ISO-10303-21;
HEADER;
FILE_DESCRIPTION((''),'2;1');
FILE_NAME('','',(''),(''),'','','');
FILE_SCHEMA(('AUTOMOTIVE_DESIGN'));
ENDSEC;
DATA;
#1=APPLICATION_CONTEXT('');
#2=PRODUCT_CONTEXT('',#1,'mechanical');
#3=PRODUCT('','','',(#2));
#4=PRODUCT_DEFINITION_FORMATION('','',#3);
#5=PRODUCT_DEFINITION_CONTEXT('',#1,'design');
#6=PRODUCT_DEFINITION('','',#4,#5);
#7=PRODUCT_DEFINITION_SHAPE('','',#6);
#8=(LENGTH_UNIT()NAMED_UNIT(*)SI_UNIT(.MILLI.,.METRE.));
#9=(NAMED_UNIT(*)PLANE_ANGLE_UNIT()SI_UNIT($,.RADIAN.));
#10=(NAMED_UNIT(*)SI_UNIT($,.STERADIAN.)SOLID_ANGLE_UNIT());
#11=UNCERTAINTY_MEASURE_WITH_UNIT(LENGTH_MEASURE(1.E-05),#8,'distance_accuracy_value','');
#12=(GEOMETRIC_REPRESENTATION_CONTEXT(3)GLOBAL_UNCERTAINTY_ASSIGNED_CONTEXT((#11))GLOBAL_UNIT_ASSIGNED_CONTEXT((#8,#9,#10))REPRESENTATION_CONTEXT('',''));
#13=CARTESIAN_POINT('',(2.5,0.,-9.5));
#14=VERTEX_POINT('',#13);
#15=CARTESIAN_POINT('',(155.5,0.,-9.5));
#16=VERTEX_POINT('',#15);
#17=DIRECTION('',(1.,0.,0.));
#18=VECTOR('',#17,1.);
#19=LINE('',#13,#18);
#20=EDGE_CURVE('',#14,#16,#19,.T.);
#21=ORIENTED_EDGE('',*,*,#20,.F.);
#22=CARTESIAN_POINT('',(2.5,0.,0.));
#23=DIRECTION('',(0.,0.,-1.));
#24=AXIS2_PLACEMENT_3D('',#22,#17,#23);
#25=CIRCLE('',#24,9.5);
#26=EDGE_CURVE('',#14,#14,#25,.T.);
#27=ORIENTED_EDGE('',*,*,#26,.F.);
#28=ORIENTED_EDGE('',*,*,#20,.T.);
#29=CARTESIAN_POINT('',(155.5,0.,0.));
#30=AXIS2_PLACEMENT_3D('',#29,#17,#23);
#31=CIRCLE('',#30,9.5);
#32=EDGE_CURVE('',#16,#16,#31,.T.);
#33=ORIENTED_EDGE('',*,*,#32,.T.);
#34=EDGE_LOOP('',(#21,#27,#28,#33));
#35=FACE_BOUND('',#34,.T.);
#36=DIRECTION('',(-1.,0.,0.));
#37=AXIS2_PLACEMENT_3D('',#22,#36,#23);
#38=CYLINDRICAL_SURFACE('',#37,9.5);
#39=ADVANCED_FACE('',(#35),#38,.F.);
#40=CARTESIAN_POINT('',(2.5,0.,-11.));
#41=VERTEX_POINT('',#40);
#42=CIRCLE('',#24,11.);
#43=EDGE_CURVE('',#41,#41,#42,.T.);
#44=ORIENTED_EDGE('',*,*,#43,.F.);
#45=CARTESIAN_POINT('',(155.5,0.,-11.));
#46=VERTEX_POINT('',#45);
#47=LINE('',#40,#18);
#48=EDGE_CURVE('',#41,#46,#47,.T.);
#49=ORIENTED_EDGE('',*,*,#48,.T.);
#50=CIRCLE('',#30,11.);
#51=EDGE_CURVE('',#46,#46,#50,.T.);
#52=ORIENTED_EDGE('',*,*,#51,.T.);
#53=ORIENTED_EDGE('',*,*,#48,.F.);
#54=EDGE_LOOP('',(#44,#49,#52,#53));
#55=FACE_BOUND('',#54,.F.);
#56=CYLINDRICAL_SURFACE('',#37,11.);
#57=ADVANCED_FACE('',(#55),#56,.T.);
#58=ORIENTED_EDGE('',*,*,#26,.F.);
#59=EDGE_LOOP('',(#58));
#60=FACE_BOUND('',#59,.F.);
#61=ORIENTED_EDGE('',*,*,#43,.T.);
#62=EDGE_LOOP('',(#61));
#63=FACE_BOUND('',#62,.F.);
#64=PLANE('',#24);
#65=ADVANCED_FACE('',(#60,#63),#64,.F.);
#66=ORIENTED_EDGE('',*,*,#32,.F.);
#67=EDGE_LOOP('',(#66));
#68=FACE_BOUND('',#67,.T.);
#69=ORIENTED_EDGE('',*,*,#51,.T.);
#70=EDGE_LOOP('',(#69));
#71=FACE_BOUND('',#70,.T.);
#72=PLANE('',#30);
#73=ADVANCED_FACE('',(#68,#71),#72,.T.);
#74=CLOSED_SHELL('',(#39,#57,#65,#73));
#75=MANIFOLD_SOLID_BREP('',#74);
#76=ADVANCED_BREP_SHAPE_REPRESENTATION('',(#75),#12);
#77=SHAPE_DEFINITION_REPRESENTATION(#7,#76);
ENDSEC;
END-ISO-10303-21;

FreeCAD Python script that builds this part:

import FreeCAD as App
import Part
import Sketcher

V = App.Vector
Q = App.Units.Quantity

doc = App.newDocument("Part")
body = doc.addObject("PartDesign::Body", "Body")

# Sketch on XY plane
sketch1 = body.newObject("Sketcher::SketchObject", "Sketch")
sketch1.AttachmentSupport = (doc.getObject("XY_Plane"), [""])
sketch1.MapMode = "FlatFace"
sketch1.AttachmentOffset = App.Placement(V(0, 0, 2.5), App.Rotation())
sketch1.addGeometry(Part.Circle(V(0, 0, 0), V(0, 0, 1), 10), False)
sketch1.addConstraint([
    Sketcher.Constraint("Coincident", 0, 3, -1, 1),
    Sketcher.Constraint("Diameter", 0, Q("19 mm")),
])
pad1 = body.newObject("PartDesign::Pad", "Pad")
pad1.Profile = sketch1
pad1.Length = 153
body2 = doc.addObject("PartDesign::Body", "Body001")

# Sketch on XY plane
sketch2 = body2.newObject("Sketcher::SketchObject", "Sketch001")
sketch2.AttachmentSupport = (doc.getObject("XY_Plane001"), [""])
sketch2.MapMode = "FlatFace"
sketch2.AttachmentOffset = App.Placement(V(0, 0, 2.5), App.Rotation())
sketch2.addGeometry(Part.Circle(V(0, 0, 0), V(0, 0, 1), 11), False)
sketch2.addConstraint([
    Sketcher.Constraint("Coincident", 0, 3, -1, 1),
    Sketcher.Constraint("Diameter", 0, Q("22 mm")),
])
pad2 = body2.newObject("PartDesign::Pad", "Pad001")
pad2.Profile = sketch2
pad2.Length = 153
doc.recompute()

boolean = body2.newObject("PartDesign::Boolean", "Boolean")
boolean.Type = "Cut"
boolean.addObjects([body])
body3 = doc.addObject("PartDesign::Body", "Body002")
doc.recompute()

body2.Placement = App.Placement(V(0, 0, 0), App.Rotation(V(0, 1, 0), 90))
boolean2 = body3.newObject("PartDesign::Boolean", "Boolean001")
boolean2.Type = "Fuse"
boolean2.addObjects([body2])

doc.recompute()
